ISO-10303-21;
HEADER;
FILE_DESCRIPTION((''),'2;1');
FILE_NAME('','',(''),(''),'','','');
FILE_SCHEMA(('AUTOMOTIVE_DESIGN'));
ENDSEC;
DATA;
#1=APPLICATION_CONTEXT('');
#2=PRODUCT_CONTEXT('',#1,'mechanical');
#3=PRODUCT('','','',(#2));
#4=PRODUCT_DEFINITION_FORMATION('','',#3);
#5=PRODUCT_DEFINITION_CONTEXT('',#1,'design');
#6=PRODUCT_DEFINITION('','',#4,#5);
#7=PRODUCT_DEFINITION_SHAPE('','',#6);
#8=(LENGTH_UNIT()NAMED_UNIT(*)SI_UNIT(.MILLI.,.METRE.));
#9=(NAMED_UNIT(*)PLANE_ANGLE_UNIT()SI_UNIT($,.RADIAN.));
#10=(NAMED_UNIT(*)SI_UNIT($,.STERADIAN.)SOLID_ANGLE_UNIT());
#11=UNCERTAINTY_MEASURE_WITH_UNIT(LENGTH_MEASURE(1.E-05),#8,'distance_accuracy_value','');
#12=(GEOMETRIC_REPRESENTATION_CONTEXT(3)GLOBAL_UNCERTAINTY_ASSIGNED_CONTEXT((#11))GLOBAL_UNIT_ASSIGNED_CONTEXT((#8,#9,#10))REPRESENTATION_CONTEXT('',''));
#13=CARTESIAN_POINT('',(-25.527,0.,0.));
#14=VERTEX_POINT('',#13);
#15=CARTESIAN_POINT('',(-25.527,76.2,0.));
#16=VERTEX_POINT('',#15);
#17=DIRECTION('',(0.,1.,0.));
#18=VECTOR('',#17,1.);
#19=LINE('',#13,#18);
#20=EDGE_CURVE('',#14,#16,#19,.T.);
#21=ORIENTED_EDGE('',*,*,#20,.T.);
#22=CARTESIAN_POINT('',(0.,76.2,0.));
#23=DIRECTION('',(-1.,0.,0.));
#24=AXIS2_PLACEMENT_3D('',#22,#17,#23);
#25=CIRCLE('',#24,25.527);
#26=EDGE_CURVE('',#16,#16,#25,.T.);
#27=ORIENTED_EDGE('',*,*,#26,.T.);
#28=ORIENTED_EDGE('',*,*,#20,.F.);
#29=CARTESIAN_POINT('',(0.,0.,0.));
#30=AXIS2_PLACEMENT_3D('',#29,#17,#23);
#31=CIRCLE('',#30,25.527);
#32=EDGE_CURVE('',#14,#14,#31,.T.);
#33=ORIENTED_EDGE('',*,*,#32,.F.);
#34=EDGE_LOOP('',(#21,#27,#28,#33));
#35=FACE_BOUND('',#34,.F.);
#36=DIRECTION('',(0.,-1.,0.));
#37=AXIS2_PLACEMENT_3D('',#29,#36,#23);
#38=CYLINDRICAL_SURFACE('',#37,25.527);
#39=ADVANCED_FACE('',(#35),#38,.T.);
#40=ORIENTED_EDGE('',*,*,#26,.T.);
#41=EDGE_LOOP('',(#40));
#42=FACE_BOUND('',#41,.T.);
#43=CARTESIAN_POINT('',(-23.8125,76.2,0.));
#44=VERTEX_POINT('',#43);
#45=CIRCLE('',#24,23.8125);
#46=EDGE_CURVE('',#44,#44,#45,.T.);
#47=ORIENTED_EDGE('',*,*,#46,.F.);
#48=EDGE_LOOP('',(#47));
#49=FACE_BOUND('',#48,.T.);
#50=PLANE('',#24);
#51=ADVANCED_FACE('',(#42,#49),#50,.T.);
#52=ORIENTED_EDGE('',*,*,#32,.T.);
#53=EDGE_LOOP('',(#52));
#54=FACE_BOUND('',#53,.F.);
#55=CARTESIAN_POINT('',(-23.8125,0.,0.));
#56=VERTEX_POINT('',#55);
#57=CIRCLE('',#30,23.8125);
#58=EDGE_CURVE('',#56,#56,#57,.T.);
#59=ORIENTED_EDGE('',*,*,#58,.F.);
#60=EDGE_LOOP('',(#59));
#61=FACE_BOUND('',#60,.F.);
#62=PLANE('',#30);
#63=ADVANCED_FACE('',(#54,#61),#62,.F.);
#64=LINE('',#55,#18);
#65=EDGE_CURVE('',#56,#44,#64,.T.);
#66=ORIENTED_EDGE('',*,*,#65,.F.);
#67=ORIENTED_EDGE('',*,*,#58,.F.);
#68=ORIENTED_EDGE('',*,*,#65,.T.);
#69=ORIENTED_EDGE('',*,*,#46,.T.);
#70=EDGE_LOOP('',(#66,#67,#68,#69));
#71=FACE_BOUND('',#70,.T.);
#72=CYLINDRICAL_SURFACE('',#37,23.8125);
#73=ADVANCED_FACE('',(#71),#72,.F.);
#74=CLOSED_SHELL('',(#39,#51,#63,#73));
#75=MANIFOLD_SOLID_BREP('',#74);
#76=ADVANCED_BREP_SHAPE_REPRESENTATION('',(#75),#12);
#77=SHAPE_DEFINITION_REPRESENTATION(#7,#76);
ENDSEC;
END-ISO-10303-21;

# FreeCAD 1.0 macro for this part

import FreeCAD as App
import Part
import Sketcher
Q = App.Units.Quantity

doc = App.newDocument("Part")
params = doc.addObject("Spreadsheet::Sheet", "Params")
for row, (alias, value) in enumerate([
    ("sketch1_diameter", "2.01 in"),
    ("sketch1_diameter2", "1.875 in"),
    ("pad1_length", "3 in"),
], start=1):
    params.set(f"A{row}", alias)
    params.set(f"B{row}", "=" + value)
    params.setAlias(f"B{row}", alias)

body = doc.addObject("PartDesign::Body", "Body")

# Sketch on XZ plane
sketch1 = body.newObject("Sketcher::SketchObject", "Sketch")
sketch1.AttachmentSupport = (doc.getObject("XZ_Plane"), [""])
sketch1.MapMode = "FlatFace"
sketch1.addGeometry([
    Part.Circle(App.Vector(0, 0, 0), App.Vector(0, 0, 1), 26),
    Part.Circle(App.Vector(0, 0, 0), App.Vector(0, 0, 1), 24),
], False)
sketch1.addConstraint([
    Sketcher.Constraint("Coincident", 0, 3, -1, 1),
    Sketcher.Constraint("Coincident", 1, 3, -1, 1),
    Sketcher.Constraint("Diameter", 0, Q("2.01 in")),
    Sketcher.Constraint("Diameter", 1, Q("1.875 in")),
])
sketch1.setExpression("Constraints[2]", "Params.sketch1_diameter")
sketch1.setExpression("Constraints[3]", "Params.sketch1_diameter2")
pad1 = body.newObject("PartDesign::Pad", "Pad")
pad1.Profile = sketch1
pad1.setExpression("Length", "Params.pad1_length")
pad1.Reversed = True

doc.recompute()
